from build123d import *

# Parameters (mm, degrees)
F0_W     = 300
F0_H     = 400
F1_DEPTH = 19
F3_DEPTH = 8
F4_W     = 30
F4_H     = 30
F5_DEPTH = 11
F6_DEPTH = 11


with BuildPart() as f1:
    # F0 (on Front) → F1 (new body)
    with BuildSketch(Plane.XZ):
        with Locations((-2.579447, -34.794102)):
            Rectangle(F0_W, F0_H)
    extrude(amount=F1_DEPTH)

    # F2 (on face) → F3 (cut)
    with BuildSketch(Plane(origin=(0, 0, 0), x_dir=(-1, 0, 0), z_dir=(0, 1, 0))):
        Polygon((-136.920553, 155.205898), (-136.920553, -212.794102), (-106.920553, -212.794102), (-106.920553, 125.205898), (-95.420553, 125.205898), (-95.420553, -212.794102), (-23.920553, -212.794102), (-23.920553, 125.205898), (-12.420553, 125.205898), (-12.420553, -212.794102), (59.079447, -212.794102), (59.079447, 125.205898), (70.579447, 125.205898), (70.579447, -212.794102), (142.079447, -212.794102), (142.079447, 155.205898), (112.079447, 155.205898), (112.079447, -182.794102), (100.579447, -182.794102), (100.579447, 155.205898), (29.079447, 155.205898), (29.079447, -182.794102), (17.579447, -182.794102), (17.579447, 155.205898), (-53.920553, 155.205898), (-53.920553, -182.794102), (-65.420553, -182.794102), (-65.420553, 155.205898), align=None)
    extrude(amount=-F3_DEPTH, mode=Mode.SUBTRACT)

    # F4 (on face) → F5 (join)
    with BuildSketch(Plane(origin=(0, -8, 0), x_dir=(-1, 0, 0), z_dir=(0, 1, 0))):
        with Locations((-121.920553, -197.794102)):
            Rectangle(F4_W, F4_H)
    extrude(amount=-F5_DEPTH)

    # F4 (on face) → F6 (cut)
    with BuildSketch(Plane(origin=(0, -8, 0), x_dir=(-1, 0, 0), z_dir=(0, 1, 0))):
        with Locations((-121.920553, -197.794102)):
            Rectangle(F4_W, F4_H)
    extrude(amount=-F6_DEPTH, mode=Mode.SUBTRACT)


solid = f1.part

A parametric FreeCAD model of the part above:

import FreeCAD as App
import Part
import Sketcher
Q = App.Units.Quantity


def add_polygon(sketch, points):
    """Adds a closed chain of lines whose ends are joined by coincident constraints."""
    first, n = sketch.GeometryCount, len(points)
    for a, b in zip(points, points[1:] + points[:1]):
        sketch.addGeometry(Part.LineSegment(App.Vector(*a, 0), App.Vector(*b, 0)), False)
    for i in range(n):
        sketch.addConstraint(Sketcher.Constraint("Coincident", first + i, 2, first + (i + 1) % n, 1))

doc = App.newDocument("Part")
body = doc.addObject("PartDesign::Body", "Body")

# Sketch on XZ plane
sketch1 = body.newObject("Sketcher::SketchObject", "Sketch")
sketch1.AttachmentSupport = (doc.getObject("XZ_Plane"), [""])
sketch1.MapMode = "FlatFace"
add_polygon(sketch1, [(-153, 165), (-153, -235), (147, -235), (147, 165)])  # lines 0-3
sketch1.addConstraint(Sketcher.Constraint("Vertical", 0))
sketch1.addConstraint(Sketcher.Constraint("Horizontal", 1))
sketch1.addConstraint(Sketcher.Constraint("Vertical", 2))
sketch1.addConstraint(Sketcher.Constraint("Horizontal", 3))
sketch1.addConstraint(Sketcher.Constraint("DistanceX", 1, 1, 1, 2, Q("300 mm")))
sketch1.addConstraint(Sketcher.Constraint("DistanceY", 0, 2, 0, 1, Q("400 mm")))
sketch1.addConstraint(Sketcher.Constraint("DistanceX", 0, 2, -1, 1, Q("152.579447 mm")))
sketch1.addConstraint(Sketcher.Constraint("DistanceY", 0, 2, -1, 1, Q("234.794102 mm")))
pad1 = body.newObject("PartDesign::Pad", "Pad")
pad1.Profile = sketch1
pad1.Length = 19

# Sketch on XZ plane
sketch2 = body.newObject("Sketcher::SketchObject", "Sketch001")
sketch2.AttachmentSupport = (doc.getObject("XZ_Plane"), [""])
sketch2.MapMode = "FlatFace"
add_polygon(sketch2, [(137, 155), (137, -213), (107, -213), (107, 125), (95, 125), (95, -213), (24, -213), (24, 125), (12, 125), (12, -213), (-59, -213), (-59, 125), (-71, 125), (-71, -213), (-142, -213), (-142, 155), (-112, 155), (-112, -183), (-101, -183), (-101, 155), (-29, 155), (-29, -183), (-18, -183), (-18, 155), (54, 155), (54, -183), (65, -183), (65, 155)])  # lines 0-27
sketch2.addConstraint(Sketcher.Constraint("Vertical", 0))
sketch2.addConstraint(Sketcher.Constraint("Horizontal", 1))
sketch2.addConstraint(Sketcher.Constraint("Vertical", 2))
sketch2.addConstraint(Sketcher.Constraint("Horizontal", 3))
sketch2.addConstraint(Sketcher.Constraint("Vertical", 4))
sketch2.addConstraint(Sketcher.Constraint("Horizontal", 5))
sketch2.addConstraint(Sketcher.Constraint("Vertical", 6))
sketch2.addConstraint(Sketcher.Constraint("Horizontal", 7))
sketch2.addConstraint(Sketcher.Constraint("Vertical", 8))
sketch2.addConstraint(Sketcher.Constraint("Horizontal", 9))
sketch2.addConstraint(Sketcher.Constraint("Vertical", 10))
sketch2.addConstraint(Sketcher.Constraint("Horizontal", 11))
sketch2.addConstraint(Sketcher.Constraint("Vertical", 12))
sketch2.addConstraint(Sketcher.Constraint("Horizontal", 13))
sketch2.addConstraint(Sketcher.Constraint("Vertical", 14))
sketch2.addConstraint(Sketcher.Constraint("Horizontal", 15))
sketch2.addConstraint(Sketcher.Constraint("Vertical", 16))
sketch2.addConstraint(Sketcher.Constraint("Horizontal", 17))
sketch2.addConstraint(Sketcher.Constraint("Vertical", 18))
sketch2.addConstraint(Sketcher.Constraint("Horizontal", 19))
sketch2.addConstraint(Sketcher.Constraint("Vertical", 20))
sketch2.addConstraint(Sketcher.Constraint("Horizontal", 21))
sketch2.addConstraint(Sketcher.Constraint("Vertical", 22))
sketch2.addConstraint(Sketcher.Constraint("Horizontal", 23))
sketch2.addConstraint(Sketcher.Constraint("Vertical", 24))
sketch2.addConstraint(Sketcher.Constraint("Horizontal", 25))
sketch2.addConstraint(Sketcher.Constraint("Vertical", 26))
sketch2.addConstraint(Sketcher.Constraint("Horizontal", 27))
sketch2.addConstraint(Sketcher.Constraint("Horizontal", 1, 2, 4, 2))
sketch2.addConstraint(Sketcher.Constraint("Horizontal", 3, 2, 6, 2))
sketch2.addConstraint(Sketcher.Constraint("Horizontal", 5, 2, 8, 2))
sketch2.addConstraint(Sketcher.Constraint("Horizontal", 7, 2, 10, 2))
sketch2.addConstraint(Sketcher.Constraint("Horizontal", 9, 2, 12, 2))
sketch2.addConstraint(Sketcher.Constraint("Horizontal", 15, 2, 18, 2))
sketch2.addConstraint(Sketcher.Constraint("Horizontal", 17, 2, 20, 2))
sketch2.addConstraint(Sketcher.Constraint("Horizontal", 19, 2, 22, 2))
sketch2.addConstraint(Sketcher.Constraint("Horizontal", 21, 2, 24, 2))
sketch2.addConstraint(Sketcher.Constraint("Horizontal", 23, 2, 26, 2))
sketch2.addConstraint(Sketcher.Constraint("Equal", 3, 7))
sketch2.addConstraint(Sketcher.Constraint("Equal", 5, 9))
sketch2.addConstraint(Sketcher.Constraint("Equal", 7, 11))
sketch2.addConstraint(Sketcher.Constraint("Equal", 9, 13))
sketch2.addConstraint(Sketcher.Constraint("Equal", 1, 15))
sketch2.addConstraint(Sketcher.Constraint("Equal", 11, 17))
sketch2.addConstraint(Sketcher.Constraint("Equal", 13, 19))
sketch2.addConstraint(Sketcher.Constraint("Equal", 17, 21))
sketch2.addConstraint(Sketcher.Constraint("Equal", 19, 23))
sketch2.addConstraint(Sketcher.Constraint("Equal", 21, 25))
sketch2.addConstraint(Sketcher.Constraint("Equal", 12, 16))
sketch2.addConstraint(Sketcher.Constraint("DistanceX", 1, 2, 1, 1, Q("30 mm")))
sketch2.addConstraint(Sketcher.Constraint("DistanceY", 0, 2, 0, 1, Q("368 mm")))
sketch2.addConstraint(Sketcher.Constraint("DistanceY", 2, 1, 2, 2, Q("338 mm")))
sketch2.addConstraint(Sketcher.Constraint("DistanceX", 3, 2, 3, 1, Q("11.5 mm")))
sketch2.addConstraint(Sketcher.Constraint("DistanceX", 5, 2, 5, 1, Q("71.5 mm")))
sketch2.addConstraint(Sketcher.Constraint("DistanceY", -1, 1, 2, 2, Q("125.205898 mm")))
sketch2.addConstraint(Sketcher.Constraint("DistanceX", -1, 1, 0, 2, Q("136.920553 mm")))
pocket1 = body.newObject("PartDesign::Pocket", "Pocket")
pocket1.Profile = sketch2
pocket1.Length = 8
pocket1.Reversed = True

# Sketch on XZ plane
sketch3 = body.newObject("Sketcher::SketchObject", "Sketch002")
sketch3.AttachmentSupport = (doc.getObject("XZ_Plane"), [""])
sketch3.MapMode = "FlatFace"
sketch3.AttachmentOffset = App.Placement(App.Vector(0, 0, 8), App.Rotation())
add_polygon(sketch3, [(137, -183), (137, -213), (107, -213), (107, -183)])  # lines 0-3
sketch3.addConstraint(Sketcher.Constraint("Vertical", 0))
sketch3.addConstraint(Sketcher.Constraint("Horizontal", 1))
sketch3.addConstraint(Sketcher.Constraint("Vertical", 2))
sketch3.addConstraint(Sketcher.Constraint("Horizontal", 3))
sketch3.addConstraint(Sketcher.Constraint("Equal", 3, 0))
sketch3.addConstraint(Sketcher.Constraint("DistanceX", 1, 2, 1, 1, Q("30 mm")))
sketch3.addConstraint(Sketcher.Constraint("DistanceX", -1, 1, 0, 2, Q("136.920553 mm")))
sketch3.addConstraint(Sketcher.Constraint("DistanceY", 0, 2, -1, 1, Q("212.794102 mm")))
pad2 = body.newObject("PartDesign::Pad", "Pad001")
pad2.Profile = sketch3
pad2.Length = 11

# Sketch on XZ plane
sketch4 = body.newObject("Sketcher::SketchObject", "Sketch003")
sketch4.AttachmentSupport = (doc.getObject("XZ_Plane"), [""])
sketch4.MapMode = "FlatFace"
sketch4.AttachmentOffset = App.Placement(App.Vector(0, 0, 8), App.Rotation())
add_polygon(sketch4, [(137, -183), (137, -213), (107, -213), (107, -183)])  # lines 0-3
sketch4.addConstraint(Sketcher.Constraint("Vertical", 0))
sketch4.addConstraint(Sketcher.Constraint("Horizontal", 1))
sketch4.addConstraint(Sketcher.Constraint("Vertical", 2))
sketch4.addConstraint(Sketcher.Constraint("Horizontal", 3))
sketch4.addConstraint(Sketcher.Constraint("Equal", 3, 0))
sketch4.addConstraint(Sketcher.Constraint("DistanceX", 1, 2, 1, 1, Q("30 mm")))
sketch4.addConstraint(Sketcher.Constraint("DistanceX", -1, 1, 0, 2, Q("136.920553 mm")))
sketch4.addConstraint(Sketcher.Constraint("DistanceY", 0, 2, -1, 1, Q("212.794102 mm")))
pocket2 = body.newObject("PartDesign::Pocket", "Pocket001")
pocket2.Profile = sketch4
pocket2.Length = 11
pocket2.Reversed = True

doc.recompute()
